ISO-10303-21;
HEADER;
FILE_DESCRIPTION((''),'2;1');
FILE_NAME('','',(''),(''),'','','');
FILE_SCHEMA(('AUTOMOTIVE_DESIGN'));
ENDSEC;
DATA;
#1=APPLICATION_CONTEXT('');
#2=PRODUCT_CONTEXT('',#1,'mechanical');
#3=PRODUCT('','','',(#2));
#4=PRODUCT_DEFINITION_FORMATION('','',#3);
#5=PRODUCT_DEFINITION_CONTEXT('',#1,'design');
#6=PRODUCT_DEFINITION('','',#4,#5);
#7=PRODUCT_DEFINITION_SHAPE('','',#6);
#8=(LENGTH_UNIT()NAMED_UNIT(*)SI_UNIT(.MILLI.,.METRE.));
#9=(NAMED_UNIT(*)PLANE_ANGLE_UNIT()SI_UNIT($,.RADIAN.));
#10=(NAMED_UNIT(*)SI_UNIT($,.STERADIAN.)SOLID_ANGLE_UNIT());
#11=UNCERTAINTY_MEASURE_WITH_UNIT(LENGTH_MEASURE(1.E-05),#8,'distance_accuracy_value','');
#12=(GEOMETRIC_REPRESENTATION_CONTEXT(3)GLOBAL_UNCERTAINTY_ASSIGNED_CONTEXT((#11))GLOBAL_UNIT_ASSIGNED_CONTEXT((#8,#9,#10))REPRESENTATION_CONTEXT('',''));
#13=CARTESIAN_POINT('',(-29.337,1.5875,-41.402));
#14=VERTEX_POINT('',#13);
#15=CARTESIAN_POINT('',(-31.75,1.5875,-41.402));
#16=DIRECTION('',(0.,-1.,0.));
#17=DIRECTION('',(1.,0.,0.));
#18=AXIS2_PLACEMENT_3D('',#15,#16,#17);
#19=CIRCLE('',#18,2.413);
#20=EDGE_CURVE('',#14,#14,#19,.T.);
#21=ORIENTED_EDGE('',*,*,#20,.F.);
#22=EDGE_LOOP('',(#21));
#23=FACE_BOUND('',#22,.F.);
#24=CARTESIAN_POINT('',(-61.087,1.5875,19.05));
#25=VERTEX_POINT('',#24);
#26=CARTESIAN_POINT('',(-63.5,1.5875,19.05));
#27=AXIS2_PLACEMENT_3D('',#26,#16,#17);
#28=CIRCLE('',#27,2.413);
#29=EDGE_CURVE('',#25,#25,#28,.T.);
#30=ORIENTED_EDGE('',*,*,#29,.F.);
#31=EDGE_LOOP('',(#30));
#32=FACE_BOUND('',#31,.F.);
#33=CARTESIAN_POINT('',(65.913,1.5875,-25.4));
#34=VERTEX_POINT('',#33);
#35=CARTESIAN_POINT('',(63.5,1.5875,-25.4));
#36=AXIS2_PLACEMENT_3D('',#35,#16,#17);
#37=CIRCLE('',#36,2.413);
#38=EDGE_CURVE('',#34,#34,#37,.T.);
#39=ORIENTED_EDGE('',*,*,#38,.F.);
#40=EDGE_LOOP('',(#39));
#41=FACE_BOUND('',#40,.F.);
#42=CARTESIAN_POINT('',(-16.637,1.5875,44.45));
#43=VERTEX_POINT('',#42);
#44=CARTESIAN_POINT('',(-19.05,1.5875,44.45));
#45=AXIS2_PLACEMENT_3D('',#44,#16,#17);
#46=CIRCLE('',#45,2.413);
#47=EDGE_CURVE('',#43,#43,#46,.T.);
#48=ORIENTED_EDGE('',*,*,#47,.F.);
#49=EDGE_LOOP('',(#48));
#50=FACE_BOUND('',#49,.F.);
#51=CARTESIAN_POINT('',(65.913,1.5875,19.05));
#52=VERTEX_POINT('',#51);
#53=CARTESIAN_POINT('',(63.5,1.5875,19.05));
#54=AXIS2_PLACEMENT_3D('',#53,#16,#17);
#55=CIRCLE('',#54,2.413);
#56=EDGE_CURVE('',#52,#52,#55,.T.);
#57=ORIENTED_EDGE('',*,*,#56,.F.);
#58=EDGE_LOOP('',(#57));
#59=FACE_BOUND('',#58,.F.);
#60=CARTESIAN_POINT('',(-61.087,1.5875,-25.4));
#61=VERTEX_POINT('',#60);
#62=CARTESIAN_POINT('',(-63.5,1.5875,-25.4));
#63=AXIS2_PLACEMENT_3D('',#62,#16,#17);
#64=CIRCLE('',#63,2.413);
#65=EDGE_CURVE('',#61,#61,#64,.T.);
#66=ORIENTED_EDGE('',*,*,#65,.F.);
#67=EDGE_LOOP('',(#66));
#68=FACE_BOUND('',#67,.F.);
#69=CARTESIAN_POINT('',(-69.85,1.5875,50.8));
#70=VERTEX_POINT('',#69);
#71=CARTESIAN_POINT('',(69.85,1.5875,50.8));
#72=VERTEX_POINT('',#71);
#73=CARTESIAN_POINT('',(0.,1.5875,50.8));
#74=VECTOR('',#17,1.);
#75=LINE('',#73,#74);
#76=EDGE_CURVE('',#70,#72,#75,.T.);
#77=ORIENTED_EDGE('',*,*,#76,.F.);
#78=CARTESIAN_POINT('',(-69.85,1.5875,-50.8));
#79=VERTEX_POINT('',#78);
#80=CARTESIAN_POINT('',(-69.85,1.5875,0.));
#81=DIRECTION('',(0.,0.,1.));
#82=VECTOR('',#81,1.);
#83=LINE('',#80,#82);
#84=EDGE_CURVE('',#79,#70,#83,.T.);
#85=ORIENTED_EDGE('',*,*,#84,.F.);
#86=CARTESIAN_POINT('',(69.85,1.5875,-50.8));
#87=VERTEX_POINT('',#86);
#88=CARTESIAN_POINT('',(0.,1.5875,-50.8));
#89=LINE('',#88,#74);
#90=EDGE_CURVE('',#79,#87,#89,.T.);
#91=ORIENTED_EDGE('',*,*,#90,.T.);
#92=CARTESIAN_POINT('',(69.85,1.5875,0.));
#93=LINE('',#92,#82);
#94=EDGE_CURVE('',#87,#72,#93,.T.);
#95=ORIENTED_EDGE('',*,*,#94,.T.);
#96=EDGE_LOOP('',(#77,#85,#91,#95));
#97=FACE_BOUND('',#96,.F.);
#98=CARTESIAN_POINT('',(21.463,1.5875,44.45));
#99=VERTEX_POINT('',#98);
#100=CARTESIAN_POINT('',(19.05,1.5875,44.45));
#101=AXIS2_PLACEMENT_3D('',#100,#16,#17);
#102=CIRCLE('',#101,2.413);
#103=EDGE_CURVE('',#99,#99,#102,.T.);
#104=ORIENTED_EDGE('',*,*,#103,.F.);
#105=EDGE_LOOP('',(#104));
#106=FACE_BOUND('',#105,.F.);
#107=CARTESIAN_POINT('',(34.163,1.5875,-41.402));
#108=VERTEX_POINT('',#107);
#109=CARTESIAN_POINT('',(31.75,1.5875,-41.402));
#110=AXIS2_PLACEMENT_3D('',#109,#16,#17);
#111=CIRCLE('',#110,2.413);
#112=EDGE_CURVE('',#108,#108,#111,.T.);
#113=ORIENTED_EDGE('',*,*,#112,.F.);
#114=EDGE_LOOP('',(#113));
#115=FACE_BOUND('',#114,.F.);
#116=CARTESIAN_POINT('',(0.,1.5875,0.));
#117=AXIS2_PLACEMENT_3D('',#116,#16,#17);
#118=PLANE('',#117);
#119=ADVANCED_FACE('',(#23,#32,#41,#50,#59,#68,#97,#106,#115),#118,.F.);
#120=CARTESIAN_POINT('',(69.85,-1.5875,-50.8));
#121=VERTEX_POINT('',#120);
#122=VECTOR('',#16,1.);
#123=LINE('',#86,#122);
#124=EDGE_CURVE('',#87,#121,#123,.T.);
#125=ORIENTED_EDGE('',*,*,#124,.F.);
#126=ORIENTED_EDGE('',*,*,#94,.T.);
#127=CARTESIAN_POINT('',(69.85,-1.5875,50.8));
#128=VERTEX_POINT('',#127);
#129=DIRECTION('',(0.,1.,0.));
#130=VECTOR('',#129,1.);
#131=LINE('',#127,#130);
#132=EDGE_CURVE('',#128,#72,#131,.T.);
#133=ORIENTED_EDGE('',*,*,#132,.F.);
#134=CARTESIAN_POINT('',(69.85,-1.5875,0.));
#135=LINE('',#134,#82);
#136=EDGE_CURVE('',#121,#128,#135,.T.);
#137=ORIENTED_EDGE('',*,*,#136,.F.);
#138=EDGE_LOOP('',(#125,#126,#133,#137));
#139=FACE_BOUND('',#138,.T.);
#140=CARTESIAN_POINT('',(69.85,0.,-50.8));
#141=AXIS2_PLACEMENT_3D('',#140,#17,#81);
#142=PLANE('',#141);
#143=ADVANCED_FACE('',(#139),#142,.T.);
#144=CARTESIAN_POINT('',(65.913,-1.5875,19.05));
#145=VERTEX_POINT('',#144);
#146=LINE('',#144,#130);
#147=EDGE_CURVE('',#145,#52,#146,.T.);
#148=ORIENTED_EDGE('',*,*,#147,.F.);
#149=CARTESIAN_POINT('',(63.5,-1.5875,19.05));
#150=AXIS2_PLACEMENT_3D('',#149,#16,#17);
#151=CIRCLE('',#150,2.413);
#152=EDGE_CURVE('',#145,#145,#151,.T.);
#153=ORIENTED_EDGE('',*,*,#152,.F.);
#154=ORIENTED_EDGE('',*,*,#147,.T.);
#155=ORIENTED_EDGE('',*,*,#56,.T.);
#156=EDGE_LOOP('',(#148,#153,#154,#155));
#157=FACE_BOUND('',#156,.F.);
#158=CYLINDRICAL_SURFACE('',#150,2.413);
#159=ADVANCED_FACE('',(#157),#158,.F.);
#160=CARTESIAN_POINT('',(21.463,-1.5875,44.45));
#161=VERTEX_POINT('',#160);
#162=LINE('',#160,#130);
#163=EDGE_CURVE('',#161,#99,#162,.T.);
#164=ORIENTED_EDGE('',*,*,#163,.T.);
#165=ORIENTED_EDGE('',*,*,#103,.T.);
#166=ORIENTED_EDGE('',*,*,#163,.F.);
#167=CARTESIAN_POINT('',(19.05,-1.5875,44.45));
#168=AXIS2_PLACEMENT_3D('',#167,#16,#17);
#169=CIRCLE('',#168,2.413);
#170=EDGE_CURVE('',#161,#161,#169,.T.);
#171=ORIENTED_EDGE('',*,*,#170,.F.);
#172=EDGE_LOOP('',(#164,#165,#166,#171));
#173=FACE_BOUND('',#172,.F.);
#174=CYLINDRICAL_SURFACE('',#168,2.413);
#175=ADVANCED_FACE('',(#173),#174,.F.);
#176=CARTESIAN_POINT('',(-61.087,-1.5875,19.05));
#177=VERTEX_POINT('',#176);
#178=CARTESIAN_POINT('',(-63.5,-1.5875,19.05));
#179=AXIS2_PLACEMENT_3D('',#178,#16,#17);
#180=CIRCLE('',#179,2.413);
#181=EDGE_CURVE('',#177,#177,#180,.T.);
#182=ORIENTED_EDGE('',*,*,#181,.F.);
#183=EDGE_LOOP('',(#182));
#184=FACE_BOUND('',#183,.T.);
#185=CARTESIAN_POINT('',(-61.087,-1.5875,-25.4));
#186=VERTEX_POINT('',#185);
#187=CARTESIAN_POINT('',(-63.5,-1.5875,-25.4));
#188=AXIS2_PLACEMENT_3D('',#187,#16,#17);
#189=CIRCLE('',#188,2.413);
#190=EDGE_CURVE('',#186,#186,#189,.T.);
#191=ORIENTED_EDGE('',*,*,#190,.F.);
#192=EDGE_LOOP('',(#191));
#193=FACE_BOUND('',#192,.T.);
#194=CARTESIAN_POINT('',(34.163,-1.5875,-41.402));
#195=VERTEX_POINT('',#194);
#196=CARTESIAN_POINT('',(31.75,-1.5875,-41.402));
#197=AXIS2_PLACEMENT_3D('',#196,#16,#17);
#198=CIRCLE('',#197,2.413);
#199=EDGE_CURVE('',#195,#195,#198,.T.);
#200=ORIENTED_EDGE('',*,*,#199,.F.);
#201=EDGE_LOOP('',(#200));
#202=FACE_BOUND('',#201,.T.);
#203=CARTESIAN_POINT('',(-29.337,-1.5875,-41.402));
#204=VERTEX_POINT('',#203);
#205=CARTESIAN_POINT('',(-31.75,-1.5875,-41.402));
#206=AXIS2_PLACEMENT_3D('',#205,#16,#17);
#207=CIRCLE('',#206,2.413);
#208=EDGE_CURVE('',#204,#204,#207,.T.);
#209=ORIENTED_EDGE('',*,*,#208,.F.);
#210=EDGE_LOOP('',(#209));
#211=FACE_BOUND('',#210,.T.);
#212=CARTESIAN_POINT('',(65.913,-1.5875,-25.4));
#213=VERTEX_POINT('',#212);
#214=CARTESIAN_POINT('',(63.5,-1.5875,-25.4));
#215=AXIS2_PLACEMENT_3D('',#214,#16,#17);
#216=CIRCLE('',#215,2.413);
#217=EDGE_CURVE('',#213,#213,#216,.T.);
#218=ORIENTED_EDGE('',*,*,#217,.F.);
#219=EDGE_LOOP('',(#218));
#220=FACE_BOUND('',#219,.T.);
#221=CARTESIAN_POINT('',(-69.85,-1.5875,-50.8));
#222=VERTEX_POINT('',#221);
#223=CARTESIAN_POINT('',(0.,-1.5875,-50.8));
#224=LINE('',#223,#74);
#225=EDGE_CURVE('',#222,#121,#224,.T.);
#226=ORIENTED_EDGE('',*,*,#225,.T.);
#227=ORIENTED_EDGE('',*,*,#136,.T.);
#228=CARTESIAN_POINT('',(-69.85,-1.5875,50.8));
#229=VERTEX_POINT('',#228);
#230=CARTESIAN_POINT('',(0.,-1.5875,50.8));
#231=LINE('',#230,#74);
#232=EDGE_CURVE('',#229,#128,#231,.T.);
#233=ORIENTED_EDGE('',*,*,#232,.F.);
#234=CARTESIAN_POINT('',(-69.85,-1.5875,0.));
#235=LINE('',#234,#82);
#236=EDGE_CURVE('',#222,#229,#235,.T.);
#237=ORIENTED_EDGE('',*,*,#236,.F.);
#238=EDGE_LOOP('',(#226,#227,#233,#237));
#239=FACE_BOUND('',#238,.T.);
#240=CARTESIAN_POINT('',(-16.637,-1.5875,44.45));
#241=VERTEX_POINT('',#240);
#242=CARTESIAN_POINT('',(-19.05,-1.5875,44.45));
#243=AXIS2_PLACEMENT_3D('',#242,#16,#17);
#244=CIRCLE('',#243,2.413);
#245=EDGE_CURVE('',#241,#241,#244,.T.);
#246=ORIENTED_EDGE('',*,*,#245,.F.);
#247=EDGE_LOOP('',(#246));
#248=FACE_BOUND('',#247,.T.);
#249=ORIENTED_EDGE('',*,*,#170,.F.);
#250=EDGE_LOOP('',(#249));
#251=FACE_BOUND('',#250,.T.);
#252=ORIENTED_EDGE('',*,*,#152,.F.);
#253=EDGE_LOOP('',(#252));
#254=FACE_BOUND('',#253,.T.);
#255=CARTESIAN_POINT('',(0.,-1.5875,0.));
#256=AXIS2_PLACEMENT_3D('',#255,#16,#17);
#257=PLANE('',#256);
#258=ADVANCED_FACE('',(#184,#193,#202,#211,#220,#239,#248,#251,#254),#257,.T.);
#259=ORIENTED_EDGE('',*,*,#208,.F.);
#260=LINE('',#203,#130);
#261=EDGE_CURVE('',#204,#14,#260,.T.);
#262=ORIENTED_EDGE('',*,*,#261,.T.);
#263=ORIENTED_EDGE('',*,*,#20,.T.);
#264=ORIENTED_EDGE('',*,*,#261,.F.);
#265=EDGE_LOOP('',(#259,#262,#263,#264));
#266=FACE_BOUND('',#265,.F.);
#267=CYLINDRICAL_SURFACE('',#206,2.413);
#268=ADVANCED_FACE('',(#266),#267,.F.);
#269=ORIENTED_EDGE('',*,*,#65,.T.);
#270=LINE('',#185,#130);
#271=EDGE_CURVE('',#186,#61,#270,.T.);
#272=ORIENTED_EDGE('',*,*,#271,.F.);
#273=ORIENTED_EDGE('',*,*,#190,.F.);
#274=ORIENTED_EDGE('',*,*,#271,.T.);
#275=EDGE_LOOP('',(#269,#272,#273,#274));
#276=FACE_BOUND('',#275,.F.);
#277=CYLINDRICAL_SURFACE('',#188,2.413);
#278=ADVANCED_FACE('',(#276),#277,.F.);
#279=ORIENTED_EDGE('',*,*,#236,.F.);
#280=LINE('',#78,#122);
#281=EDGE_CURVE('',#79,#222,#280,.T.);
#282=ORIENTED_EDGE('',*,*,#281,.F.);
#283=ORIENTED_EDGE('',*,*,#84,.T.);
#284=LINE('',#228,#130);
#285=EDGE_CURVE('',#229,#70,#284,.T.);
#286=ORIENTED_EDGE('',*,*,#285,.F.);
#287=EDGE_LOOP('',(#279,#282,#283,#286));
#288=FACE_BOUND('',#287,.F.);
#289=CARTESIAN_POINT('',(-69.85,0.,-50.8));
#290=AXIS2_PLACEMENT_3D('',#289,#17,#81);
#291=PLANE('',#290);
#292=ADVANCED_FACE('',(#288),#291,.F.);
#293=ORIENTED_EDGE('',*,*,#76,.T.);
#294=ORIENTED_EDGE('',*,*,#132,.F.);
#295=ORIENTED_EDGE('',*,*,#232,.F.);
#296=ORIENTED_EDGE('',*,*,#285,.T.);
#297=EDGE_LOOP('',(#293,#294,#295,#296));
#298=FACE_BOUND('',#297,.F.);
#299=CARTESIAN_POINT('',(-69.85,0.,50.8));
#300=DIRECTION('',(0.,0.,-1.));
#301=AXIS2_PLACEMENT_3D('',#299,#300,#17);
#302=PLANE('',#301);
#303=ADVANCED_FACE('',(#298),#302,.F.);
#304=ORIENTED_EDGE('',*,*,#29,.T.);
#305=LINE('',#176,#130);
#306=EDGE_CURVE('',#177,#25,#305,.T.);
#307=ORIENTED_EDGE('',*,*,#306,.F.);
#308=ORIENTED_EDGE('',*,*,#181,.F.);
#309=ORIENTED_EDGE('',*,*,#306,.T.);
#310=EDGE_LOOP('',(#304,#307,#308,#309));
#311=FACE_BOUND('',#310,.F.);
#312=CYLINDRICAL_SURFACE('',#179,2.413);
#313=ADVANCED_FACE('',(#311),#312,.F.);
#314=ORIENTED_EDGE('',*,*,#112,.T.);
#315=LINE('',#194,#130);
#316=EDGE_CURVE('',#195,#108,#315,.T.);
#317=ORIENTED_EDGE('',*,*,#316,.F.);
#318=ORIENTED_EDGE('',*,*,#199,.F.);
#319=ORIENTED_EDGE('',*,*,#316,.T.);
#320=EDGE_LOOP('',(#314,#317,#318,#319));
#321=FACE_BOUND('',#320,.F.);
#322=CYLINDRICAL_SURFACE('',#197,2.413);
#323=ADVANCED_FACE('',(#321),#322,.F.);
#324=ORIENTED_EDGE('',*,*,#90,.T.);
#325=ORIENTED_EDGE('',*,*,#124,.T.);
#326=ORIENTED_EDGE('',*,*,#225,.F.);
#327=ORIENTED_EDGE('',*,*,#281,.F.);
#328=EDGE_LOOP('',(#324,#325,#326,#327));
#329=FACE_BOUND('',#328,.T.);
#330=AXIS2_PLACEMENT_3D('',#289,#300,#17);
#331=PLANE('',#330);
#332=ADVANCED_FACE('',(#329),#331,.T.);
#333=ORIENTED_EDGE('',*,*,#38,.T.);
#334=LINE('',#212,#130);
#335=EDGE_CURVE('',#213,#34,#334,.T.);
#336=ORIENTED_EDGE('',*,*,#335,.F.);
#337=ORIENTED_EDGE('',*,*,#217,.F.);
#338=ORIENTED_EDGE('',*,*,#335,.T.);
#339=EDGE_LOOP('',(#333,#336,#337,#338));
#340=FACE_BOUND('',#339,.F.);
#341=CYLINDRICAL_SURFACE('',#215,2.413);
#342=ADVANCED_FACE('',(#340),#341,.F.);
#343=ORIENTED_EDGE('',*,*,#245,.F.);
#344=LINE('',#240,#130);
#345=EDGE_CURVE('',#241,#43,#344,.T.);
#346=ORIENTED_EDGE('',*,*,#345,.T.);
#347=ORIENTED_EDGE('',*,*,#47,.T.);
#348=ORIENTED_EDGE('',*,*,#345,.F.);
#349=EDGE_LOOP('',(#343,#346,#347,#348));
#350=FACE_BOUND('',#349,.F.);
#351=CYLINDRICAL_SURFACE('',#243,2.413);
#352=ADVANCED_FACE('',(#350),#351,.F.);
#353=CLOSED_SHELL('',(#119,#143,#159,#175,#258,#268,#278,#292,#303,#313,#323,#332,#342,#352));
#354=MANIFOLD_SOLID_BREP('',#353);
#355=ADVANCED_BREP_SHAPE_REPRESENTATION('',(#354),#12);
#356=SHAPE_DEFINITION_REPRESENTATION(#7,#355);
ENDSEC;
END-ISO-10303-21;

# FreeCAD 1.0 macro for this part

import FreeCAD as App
import Part
import Sketcher
from FreeCAD import Vector
Q = App.Units.Quantity


def add_polygon(sketch, points):
    """Adds a closed chain of lines whose ends are joined by coincident constraints."""
    first, n = sketch.GeometryCount, len(points)
    for a, b in zip(points, points[1:] + points[:1]):
        sketch.addGeometry(Part.LineSegment(App.Vector(*a, 0), App.Vector(*b, 0)), False)
    for i in range(n):
        sketch.addConstraint(Sketcher.Constraint("Coincident", first + i, 2, first + (i + 1) % n, 1))

doc = App.newDocument("Part")
params = doc.addObject("Spreadsheet::Sheet", "Params")
for row, (alias, value) in enumerate([
    ("sketch1_height", "4 in"),
    ("sketch1_width", "5.5 in"),
    ("pad1_length", "0.125 in"),
    ("sketch2_diameter", "0.19 in"),
    ("sketch3_diameter", "0.19 in"),
    ("sketch4_diameter", "0.19 in"),
], start=1):
    params.set(f"A{row}", alias)
    params.set(f"B{row}", "=" + value)
    params.setAlias(f"B{row}", alias)

body = doc.addObject("PartDesign::Body", "Body")

sketch1 = doc.addObject("Sketcher::SketchObject", "Sketch")
body.addObject(sketch1)
sketch1.AttachmentSupport = (doc.XZ_Plane, [""])
sketch1.MapMode = "FlatFace"
add_polygon(sketch1, [(-70, 51), (-70, -51), (70, -51), (70, 51)])
sketch1.addConstraint([
    Sketcher.Constraint("Vertical", 0),
    Sketcher.Constraint("Horizontal", 1),
    Sketcher.Constraint("Vertical", 2),
    Sketcher.Constraint("Horizontal", 3),
    Sketcher.Constraint("Symmetric", 0, 2, 2, 2, -1, 1),
    Sketcher.Constraint("DistanceY", 0, 2, 0, 1, Q("4 in")),
    Sketcher.Constraint("DistanceX", 1, 1, 1, 2, Q("5.5 in")),
])
sketch1.setExpression("Constraints[9]", "Params.sketch1_height")
sketch1.setExpression("Constraints[10]", "Params.sketch1_width")
pad1 = doc.addObject("PartDesign::Pad", "Pad")
body.addObject(pad1)
pad1.Profile = sketch1
pad1.setExpression("Length", "Params.pad1_length")
pad1.Midplane = True

sketch2 = doc.addObject("Sketcher::SketchObject", "Sketch001")
body.addObject(sketch2)
sketch2.AttachmentSupport = (doc.XZ_Plane, [""])
sketch2.MapMode = "FlatFace"
sketch2.AttachmentOffset = App.Placement(Vector(0, 0, 0.0625 * 25.4), App.Rotation())
sketch2.addGeometry([
    Part.Circle(Vector(-19.1, 44.5, 0), Vector(0, 0, 1), 2.4),
    Part.Circle(Vector(19.1, 44.5, 0), Vector(0, 0, 1), 2.4),
], False)
sketch2.addConstraint([
    Sketcher.Constraint("Equal", 0, 1),
    Sketcher.Constraint("Symmetric", 0, 3, 1, 3, -2),
    Sketcher.Constraint("Diameter", 0, Q("0.19 in")),
    Sketcher.Constraint("DistanceX", 0, 3, 1, 3, Q("1.5 in")),
    Sketcher.Constraint("DistanceY", -1, 1, 0, 3, Q("1.75 in")),
])
sketch2.setExpression("Constraints[2]", "Params.sketch2_diameter")
pocket1 = doc.addObject("PartDesign::Pocket", "Pocket")
body.addObject(pocket1)
pocket1.Profile = sketch2
pocket1.Type = "ThroughAll"

sketch3 = doc.addObject("Sketcher::SketchObject", "Sketch002")
body.addObject(sketch3)
sketch3.AttachmentSupport = (doc.XZ_Plane, [""])
sketch3.MapMode = "FlatFace"
sketch3.AttachmentOffset = App.Placement(Vector(0, 0, 0.0625 * 25.4), App.Rotation())
sketch3.addGeometry([
    Part.Circle(Vector(-31.8, -41.4, 0), Vector(0, 0, 1), 2.4),
    Part.Circle(Vector(31.8, -41.4, 0), Vector(0, 0, 1), 2.4),
], False)
sketch3.addConstraint([
    Sketcher.Constraint("Equal", 0, 1),
    Sketcher.Constraint("Symmetric", 0, 3, 1, 3, -2),
    Sketcher.Constraint("Diameter", 0, Q("0.19 in")),
    Sketcher.Constraint("DistanceX", 0, 3, 1, 3, Q("2.5 in")),
    Sketcher.Constraint("DistanceY", 0, 3, -1, 1, Q("1.63 in")),
])
sketch3.setExpression("Constraints[2]", "Params.sketch3_diameter")
pocket2 = doc.addObject("PartDesign::Pocket", "Pocket001")
body.addObject(pocket2)
pocket2.Profile = sketch3
pocket2.Type = "ThroughAll"

sketch4 = doc.addObject("Sketcher::SketchObject", "Sketch003")
body.addObject(sketch4)
sketch4.AttachmentSupport = (doc.XZ_Plane, [""])
sketch4.MapMode = "FlatFace"
sketch4.AttachmentOffset = App.Placement(Vector(0, 0, 0.0625 * 25.4), App.Rotation())
sketch4.addGeometry([
    Part.Circle(Vector(-63.5, -25.4, 0), Vector(0, 0, 1), 2.4),
    Part.Circle(Vector(-63.5, 19.1, 0), Vector(0, 0, 1), 2.4),
    Part.Circle(Vector(63.5, 19.1, 0), Vector(0, 0, 1), 2.4),
    Part.Circle(Vector(63.5, -25.4, 0), Vector(0, 0, 1), 2.4),
], False)
sketch4.addConstraint([
    Sketcher.Constraint("Equal", 0, 1),
    Sketcher.Constraint("Equal", 1, 2),
    Sketcher.Constraint("Equal", 2, 3),
    Sketcher.Constraint("Symmetric", 1, 3, 2, 3, -2),
    Sketcher.Constraint("Symmetric", 0, 3, 3, 3, -2),
    Sketcher.Constraint("Vertical", 0, 3, 1, 3),
    Sketcher.Constraint("Diameter", 0, Q("0.19 in")),
    Sketcher.Constraint("DistanceY", 0, 3, -1, 1, Q("1 in")),
    Sketcher.Constraint("DistanceX", 1, 3, 2, 3, Q("5 in")),
    Sketcher.Constraint("DistanceY", -1, 1, 1, 3, Q("0.75 in")),
])
sketch4.setExpression("Constraints[6]", "Params.sketch4_diameter")
pocket3 = doc.addObject("PartDesign::Pocket", "Pocket002")
body.addObject(pocket3)
pocket3.Profile = sketch4
pocket3.Type = "ThroughAll"

doc.recompute()
